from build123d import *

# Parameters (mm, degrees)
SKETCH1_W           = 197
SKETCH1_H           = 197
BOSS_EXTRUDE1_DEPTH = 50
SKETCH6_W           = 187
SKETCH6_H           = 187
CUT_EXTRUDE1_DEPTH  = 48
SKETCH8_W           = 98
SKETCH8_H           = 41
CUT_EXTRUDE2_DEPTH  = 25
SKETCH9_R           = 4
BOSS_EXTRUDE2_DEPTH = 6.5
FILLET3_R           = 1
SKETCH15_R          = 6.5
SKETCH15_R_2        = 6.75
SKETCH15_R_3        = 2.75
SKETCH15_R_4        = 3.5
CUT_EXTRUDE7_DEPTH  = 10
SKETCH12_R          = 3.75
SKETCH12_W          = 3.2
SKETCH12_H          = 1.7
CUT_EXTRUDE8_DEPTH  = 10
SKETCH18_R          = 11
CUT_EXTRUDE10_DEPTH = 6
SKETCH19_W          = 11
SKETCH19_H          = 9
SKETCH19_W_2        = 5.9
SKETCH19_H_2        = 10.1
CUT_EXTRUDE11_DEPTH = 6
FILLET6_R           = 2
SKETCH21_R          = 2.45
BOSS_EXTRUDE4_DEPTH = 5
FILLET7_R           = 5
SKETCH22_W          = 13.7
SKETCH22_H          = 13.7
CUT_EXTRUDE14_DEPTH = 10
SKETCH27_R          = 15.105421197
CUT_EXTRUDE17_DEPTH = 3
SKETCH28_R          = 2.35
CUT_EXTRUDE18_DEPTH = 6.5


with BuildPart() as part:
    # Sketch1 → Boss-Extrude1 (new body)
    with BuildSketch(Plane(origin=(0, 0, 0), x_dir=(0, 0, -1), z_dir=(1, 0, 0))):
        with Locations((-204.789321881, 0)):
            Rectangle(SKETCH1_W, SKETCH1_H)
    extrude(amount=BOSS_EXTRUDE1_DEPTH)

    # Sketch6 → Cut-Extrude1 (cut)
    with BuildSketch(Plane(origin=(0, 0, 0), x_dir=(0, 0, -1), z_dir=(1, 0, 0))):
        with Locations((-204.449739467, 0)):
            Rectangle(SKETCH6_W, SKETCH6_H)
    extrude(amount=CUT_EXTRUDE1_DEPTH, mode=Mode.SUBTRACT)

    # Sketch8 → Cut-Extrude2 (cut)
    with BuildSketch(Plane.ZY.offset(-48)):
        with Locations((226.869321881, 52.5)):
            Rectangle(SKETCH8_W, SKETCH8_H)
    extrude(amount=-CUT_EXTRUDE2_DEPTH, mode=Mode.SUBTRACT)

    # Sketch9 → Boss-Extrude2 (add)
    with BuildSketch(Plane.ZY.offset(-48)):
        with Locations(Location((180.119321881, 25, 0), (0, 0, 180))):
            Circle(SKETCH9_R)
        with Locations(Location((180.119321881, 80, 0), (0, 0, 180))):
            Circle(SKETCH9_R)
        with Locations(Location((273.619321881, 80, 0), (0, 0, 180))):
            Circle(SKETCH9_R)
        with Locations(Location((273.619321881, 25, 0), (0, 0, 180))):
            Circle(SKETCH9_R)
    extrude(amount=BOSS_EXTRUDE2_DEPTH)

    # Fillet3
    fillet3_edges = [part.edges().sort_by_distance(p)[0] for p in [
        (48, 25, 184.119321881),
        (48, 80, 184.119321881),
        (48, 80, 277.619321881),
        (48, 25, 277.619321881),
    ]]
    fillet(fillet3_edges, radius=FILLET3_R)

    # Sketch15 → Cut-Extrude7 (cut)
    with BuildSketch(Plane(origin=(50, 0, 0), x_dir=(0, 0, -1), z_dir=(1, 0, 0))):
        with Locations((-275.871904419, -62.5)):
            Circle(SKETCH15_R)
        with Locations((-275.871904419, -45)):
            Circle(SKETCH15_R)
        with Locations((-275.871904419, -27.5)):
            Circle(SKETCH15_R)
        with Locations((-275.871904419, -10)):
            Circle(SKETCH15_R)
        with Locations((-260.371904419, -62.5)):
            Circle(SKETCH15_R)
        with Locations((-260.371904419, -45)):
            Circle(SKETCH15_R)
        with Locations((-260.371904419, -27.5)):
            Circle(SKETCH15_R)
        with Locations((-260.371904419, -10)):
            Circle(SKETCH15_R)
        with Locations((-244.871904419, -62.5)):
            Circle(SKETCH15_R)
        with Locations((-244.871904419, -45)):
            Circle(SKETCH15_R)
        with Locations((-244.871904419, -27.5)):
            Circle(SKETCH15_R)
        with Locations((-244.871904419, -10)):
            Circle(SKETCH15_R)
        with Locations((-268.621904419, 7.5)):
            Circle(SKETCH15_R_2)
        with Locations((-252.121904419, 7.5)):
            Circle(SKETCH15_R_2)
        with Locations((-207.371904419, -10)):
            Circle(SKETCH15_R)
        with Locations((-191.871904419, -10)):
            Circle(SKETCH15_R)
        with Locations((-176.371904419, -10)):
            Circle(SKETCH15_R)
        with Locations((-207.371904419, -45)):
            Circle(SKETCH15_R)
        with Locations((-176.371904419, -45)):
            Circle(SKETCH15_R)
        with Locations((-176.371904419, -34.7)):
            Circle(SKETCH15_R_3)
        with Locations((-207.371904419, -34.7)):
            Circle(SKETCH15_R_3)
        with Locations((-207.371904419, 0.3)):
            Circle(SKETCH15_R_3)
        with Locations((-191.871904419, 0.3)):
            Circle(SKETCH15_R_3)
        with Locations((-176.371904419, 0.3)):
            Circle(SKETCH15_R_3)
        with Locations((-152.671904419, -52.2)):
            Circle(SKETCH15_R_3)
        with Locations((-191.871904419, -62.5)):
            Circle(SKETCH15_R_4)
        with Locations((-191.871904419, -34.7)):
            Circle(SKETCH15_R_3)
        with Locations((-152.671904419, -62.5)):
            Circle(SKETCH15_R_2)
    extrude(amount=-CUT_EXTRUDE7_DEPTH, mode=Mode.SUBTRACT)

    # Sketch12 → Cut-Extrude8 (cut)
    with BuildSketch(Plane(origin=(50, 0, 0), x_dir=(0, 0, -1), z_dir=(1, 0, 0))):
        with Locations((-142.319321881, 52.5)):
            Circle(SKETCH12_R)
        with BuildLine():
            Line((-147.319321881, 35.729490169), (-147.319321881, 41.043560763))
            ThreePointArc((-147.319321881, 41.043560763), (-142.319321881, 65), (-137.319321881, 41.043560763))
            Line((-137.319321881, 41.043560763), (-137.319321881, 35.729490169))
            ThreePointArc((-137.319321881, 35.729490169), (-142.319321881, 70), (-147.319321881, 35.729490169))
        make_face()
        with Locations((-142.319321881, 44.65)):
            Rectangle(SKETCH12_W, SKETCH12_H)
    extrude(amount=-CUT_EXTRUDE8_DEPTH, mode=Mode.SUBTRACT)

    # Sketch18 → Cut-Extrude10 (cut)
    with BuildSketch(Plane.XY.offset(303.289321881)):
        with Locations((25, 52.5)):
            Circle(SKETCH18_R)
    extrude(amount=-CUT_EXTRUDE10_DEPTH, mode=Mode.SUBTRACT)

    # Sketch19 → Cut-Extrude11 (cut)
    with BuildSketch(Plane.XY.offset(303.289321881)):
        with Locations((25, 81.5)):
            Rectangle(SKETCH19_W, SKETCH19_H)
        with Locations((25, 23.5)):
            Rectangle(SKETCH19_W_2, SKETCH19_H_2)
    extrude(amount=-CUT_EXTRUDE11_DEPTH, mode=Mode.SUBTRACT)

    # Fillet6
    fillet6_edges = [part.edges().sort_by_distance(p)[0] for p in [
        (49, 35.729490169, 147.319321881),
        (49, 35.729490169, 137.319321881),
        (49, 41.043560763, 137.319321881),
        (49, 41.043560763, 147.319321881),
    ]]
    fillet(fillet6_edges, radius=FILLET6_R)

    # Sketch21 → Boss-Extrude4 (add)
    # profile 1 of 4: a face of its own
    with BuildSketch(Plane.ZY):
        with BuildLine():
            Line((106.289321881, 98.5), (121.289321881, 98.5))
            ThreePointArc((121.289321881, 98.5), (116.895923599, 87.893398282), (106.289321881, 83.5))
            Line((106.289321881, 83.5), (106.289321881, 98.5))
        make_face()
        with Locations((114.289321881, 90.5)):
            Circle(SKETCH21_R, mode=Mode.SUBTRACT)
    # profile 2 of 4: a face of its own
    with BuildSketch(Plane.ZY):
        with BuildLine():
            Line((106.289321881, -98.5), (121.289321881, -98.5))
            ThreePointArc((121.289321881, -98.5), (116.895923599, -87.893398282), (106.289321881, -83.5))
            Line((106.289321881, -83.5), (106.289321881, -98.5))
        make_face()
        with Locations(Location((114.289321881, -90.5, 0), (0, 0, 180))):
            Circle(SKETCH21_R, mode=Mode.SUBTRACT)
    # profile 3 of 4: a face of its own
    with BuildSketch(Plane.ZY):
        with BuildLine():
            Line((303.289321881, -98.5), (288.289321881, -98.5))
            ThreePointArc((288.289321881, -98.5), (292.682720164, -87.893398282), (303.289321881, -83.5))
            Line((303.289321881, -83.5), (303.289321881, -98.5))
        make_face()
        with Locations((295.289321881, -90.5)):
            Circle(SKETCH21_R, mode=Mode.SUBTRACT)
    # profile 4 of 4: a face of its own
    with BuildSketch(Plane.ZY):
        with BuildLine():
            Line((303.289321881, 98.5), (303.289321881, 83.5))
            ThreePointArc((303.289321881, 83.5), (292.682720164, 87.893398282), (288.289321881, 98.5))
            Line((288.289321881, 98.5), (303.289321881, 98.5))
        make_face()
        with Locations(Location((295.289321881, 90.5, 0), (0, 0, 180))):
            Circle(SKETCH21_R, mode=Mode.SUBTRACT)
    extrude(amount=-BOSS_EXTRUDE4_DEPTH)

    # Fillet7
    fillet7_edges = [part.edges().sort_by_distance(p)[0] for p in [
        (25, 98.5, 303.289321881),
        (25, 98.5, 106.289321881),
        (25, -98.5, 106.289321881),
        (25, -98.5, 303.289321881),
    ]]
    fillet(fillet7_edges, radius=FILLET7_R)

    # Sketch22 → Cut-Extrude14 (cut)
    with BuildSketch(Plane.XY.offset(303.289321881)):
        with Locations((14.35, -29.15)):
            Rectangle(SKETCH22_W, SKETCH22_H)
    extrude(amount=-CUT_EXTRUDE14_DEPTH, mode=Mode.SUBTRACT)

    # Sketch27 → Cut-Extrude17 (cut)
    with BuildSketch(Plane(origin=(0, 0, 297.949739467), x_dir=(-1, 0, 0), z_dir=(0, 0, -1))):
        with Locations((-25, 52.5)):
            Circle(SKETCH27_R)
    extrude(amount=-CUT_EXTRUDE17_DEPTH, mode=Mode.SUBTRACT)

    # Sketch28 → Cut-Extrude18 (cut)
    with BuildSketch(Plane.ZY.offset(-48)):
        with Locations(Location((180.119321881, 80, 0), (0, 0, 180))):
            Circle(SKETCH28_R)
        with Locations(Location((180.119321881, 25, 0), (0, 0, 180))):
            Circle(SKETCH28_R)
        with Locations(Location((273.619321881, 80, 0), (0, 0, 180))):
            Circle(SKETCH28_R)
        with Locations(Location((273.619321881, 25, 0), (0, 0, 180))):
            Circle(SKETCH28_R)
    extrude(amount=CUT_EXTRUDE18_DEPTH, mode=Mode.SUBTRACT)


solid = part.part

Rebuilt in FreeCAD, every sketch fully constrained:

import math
import FreeCAD as App
import Part
import Sketcher
Q = App.Units.Quantity


def edges_at(feature, points):
    """Names of the edges that pass closest to the given points."""
    edges = feature.Shape.Edges
    near = lambda p: min(range(len(edges)), key=lambda i: edges[i].distToShape(Part.Vertex(*p))[0])
    return sorted({f"Edge{near(p) + 1}" for p in points})

doc = App.newDocument("Part")
body = doc.addObject("PartDesign::Body", "Body")

sketch1 = doc.addObject("Sketcher::SketchObject", "Sketch")
body.addObject(sketch1)
sketch1.AttachmentSupport = (doc.YZ_Plane, [""])
sketch1.MapMode = "FlatFace"
sketch1.addGeometry(Part.LineSegment(App.Vector(98, 303, 0), App.Vector(-98, 303, 0)), False)
sketch1.addGeometry(Part.LineSegment(App.Vector(-98, 303, 0), App.Vector(-98, 106, 0)), False)
sketch1.addGeometry(Part.LineSegment(App.Vector(-98, 106, 0), App.Vector(98, 106, 0)), False)
sketch1.addGeometry(Part.LineSegment(App.Vector(98, 106, 0), App.Vector(98, 303, 0)), False)
sketch1.addConstraint(Sketcher.Constraint("Coincident", 0, 2, 1, 1))
sketch1.addConstraint(Sketcher.Constraint("Coincident", 1, 2, 2, 1))
sketch1.addConstraint(Sketcher.Constraint("Coincident", 2, 2, 3, 1))
sketch1.addConstraint(Sketcher.Constraint("Coincident", 3, 2, 0, 1))
sketch1.addConstraint(Sketcher.Constraint("Horizontal", 0))
sketch1.addConstraint(Sketcher.Constraint("Vertical", 1))
sketch1.addConstraint(Sketcher.Constraint("Horizontal", 2))
sketch1.addConstraint(Sketcher.Constraint("Vertical", 3))
sketch1.addConstraint(Sketcher.Constraint("Equal", 2, 1))
sketch1.addConstraint(Sketcher.Constraint("DistanceX", 0, 2, 0, 1, Q("197 mm")))
sketch1.addConstraint(Sketcher.Constraint("DistanceX", 0, 2, -1, 1, Q("98.5 mm")))
sketch1.addConstraint(Sketcher.Constraint("DistanceY", -1, 1, 0, 2, Q("303.289322 mm")))
pad1 = doc.addObject("PartDesign::Pad", "Pad")
body.addObject(pad1)
pad1.Profile = sketch1
pad1.Length = 50

sketch2 = doc.addObject("Sketcher::SketchObject", "Sketch001")
body.addObject(sketch2)
sketch2.AttachmentSupport = (doc.YZ_Plane, [""])
sketch2.MapMode = "FlatFace"
sketch2.addGeometry(Part.LineSegment(App.Vector(94, 298, 0), App.Vector(-94, 298, 0)), False)
sketch2.addGeometry(Part.LineSegment(App.Vector(-94, 298, 0), App.Vector(-94, 111, 0)), False)
sketch2.addGeometry(Part.LineSegment(App.Vector(-94, 111, 0), App.Vector(94, 111, 0)), False)
sketch2.addGeometry(Part.LineSegment(App.Vector(94, 111, 0), App.Vector(94, 298, 0)), False)
sketch2.addConstraint(Sketcher.Constraint("Coincident", 0, 2, 1, 1))
sketch2.addConstraint(Sketcher.Constraint("Coincident", 1, 2, 2, 1))
sketch2.addConstraint(Sketcher.Constraint("Coincident", 2, 2, 3, 1))
sketch2.addConstraint(Sketcher.Constraint("Coincident", 3, 2, 0, 1))
sketch2.addConstraint(Sketcher.Constraint("Horizontal", 0))
sketch2.addConstraint(Sketcher.Constraint("Vertical", 1))
sketch2.addConstraint(Sketcher.Constraint("Horizontal", 2))
sketch2.addConstraint(Sketcher.Constraint("Vertical", 3))
sketch2.addConstraint(Sketcher.Constraint("Equal", 2, 1))
sketch2.addConstraint(Sketcher.Constraint("DistanceX", 0, 2, 0, 1, Q("187 mm")))
sketch2.addConstraint(Sketcher.Constraint("DistanceX", 0, 2, -1, 1, Q("93.5 mm")))
sketch2.addConstraint(Sketcher.Constraint("DistanceY", -1, 1, 0, 2, Q("297.949739 mm")))
pocket1 = doc.addObject("PartDesign::Pocket", "Pocket")
body.addObject(pocket1)
pocket1.Profile = sketch2
pocket1.Length = 48
pocket1.Reversed = True

sketch3 = doc.addObject("Sketcher::SketchObject", "Sketch002")
body.addObject(sketch3)
sketch3.AttachmentSupport = (doc.YZ_Plane, [""])
sketch3.MapMode = "FlatFace"
sketch3.AttachmentOffset = App.Placement(App.Vector(0, 0, 48), App.Rotation())
sketch3.addGeometry(Part.LineSegment(App.Vector(73, 178, 0), App.Vector(32, 178, 0)), False)
sketch3.addGeometry(Part.LineSegment(App.Vector(32, 178, 0), App.Vector(32, 276, 0)), False)
sketch3.addGeometry(Part.LineSegment(App.Vector(32, 276, 0), App.Vector(73, 276, 0)), False)
sketch3.addGeometry(Part.LineSegment(App.Vector(73, 276, 0), App.Vector(73, 178, 0)), False)
sketch3.addConstraint(Sketcher.Constraint("Coincident", 0, 2, 1, 1))
sketch3.addConstraint(Sketcher.Constraint("Coincident", 1, 2, 2, 1))
sketch3.addConstraint(Sketcher.Constraint("Coincident", 2, 2, 3, 1))
sketch3.addConstraint(Sketcher.Constraint("Coincident", 3, 2, 0, 1))
sketch3.addConstraint(Sketcher.Constraint("Horizontal", 0))
sketch3.addConstraint(Sketcher.Constraint("Vertical", 1))
sketch3.addConstraint(Sketcher.Constraint("Horizontal", 2))
sketch3.addConstraint(Sketcher.Constraint("Vertical", 3))
sketch3.addConstraint(Sketcher.Constraint("DistanceX", 0, 2, 0, 1, Q("41 mm")))
sketch3.addConstraint(Sketcher.Constraint("DistanceY", 1, 1, 1, 2, Q("98 mm")))
sketch3.addConstraint(Sketcher.Constraint("DistanceX", -1, 1, 0, 2, Q("32 mm")))
sketch3.addConstraint(Sketcher.Constraint("DistanceY", -1, 1, 0, 2, Q("177.869322 mm")))
pocket2 = doc.addObject("PartDesign::Pocket", "Pocket001")
body.addObject(pocket2)
pocket2.Profile = sketch3
pocket2.Length = 25
pocket2.Reversed = True

sketch4 = doc.addObject("Sketcher::SketchObject", "Sketch003")
body.addObject(sketch4)
sketch4.AttachmentSupport = (doc.YZ_Plane, [""])
sketch4.MapMode = "FlatFace"
sketch4.AttachmentOffset = App.Placement(App.Vector(0, 0, 48), App.Rotation())
sketch4.addGeometry(Part.Circle(App.Vector(25, 180.1, 0), App.Vector(0, 0, 1), 4), False)
sketch4.addGeometry(Part.Circle(App.Vector(80, 180.1, 0), App.Vector(0, 0, 1), 4), False)
sketch4.addGeometry(Part.Circle(App.Vector(80, 273.6, 0), App.Vector(0, 0, 1), 4), False)
sketch4.addGeometry(Part.Circle(App.Vector(25, 273.6, 0), App.Vector(0, 0, 1), 4), False)
sketch4.addConstraint(Sketcher.Constraint("Equal", 0, 1))
sketch4.addConstraint(Sketcher.Constraint("Equal", 1, 2))
sketch4.addConstraint(Sketcher.Constraint("Equal", 2, 3))
sketch4.addConstraint(Sketcher.Constraint("Horizontal", 0, 3, 1, 3))
sketch4.addConstraint(Sketcher.Constraint("Horizontal", 2, 3, 3, 3))
sketch4.addConstraint(Sketcher.Constraint("Vertical", 1, 3, 2, 3))
sketch4.addConstraint(Sketcher.Constraint("Vertical", 0, 3, 3, 3))
sketch4.addConstraint(Sketcher.Constraint("Diameter", 0, Q("8 mm")))
sketch4.addConstraint(Sketcher.Constraint("DistanceX", -1, 1, 0, 3, Q("25 mm")))
sketch4.addConstraint(Sketcher.Constraint("DistanceX", -1, 1, 1, 3, Q("80 mm")))
sketch4.addConstraint(Sketcher.Constraint("DistanceY", 1, 3, 2, 3, Q("93.5 mm")))
sketch4.addConstraint(Sketcher.Constraint("DistanceY", -1, 1, 0, 3, Q("180.119322 mm")))
pad2 = doc.addObject("PartDesign::Pad", "Pad001")
body.addObject(pad2)
pad2.Profile = sketch4
pad2.Length = 6.5
pad2.Reversed = True
doc.recompute()

fillet = doc.addObject("PartDesign::Fillet", "Fillet")
body.addObject(fillet)
fillet.Base = (pad2, edges_at(pad2, [
    (48, 25, 184.119),
    (48, 80, 184.119),
    (48, 80, 277.619),
    (48, 25, 277.619),
]))
fillet.Radius = 1

sketch5 = doc.addObject("Sketcher::SketchObject", "Sketch004")
body.addObject(sketch5)
sketch5.AttachmentSupport = (doc.YZ_Plane, [""])
sketch5.MapMode = "FlatFace"
sketch5.AttachmentOffset = App.Placement(App.Vector(0, 0, 50), App.Rotation())
sketch5.addGeometry(Part.Circle(App.Vector(-62.5, 275.9, 0), App.Vector(0, 0, 1), 6.5), False)
sketch5.addGeometry(Part.Circle(App.Vector(-45, 275.9, 0), App.Vector(0, 0, 1), 6.5), False)
sketch5.addGeometry(Part.Circle(App.Vector(-27.5, 275.9, 0), App.Vector(0, 0, 1), 6.5), False)
sketch5.addGeometry(Part.Circle(App.Vector(-10, 275.9, 0), App.Vector(0, 0, 1), 6.5), False)
sketch5.addGeometry(Part.Circle(App.Vector(-62.5, 260.4, 0), App.Vector(0, 0, 1), 6.5), False)
sketch5.addGeometry(Part.Circle(App.Vector(-45, 260.4, 0), App.Vector(0, 0, 1), 6.5), False)
sketch5.addGeometry(Part.Circle(App.Vector(-27.5, 260.4, 0), App.Vector(0, 0, 1), 6.5), False)
sketch5.addGeometry(Part.Circle(App.Vector(-10, 260.4, 0), App.Vector(0, 0, 1), 6.5), False)
sketch5.addGeometry(Part.Circle(App.Vector(-62.5, 244.9, 0), App.Vector(0, 0, 1), 6.5), False)
sketch5.addGeometry(Part.Circle(App.Vector(-45, 244.9, 0), App.Vector(0, 0, 1), 6.5), False)
sketch5.addGeometry(Part.Circle(App.Vector(-27.5, 244.9, 0), App.Vector(0, 0, 1), 6.5), False)
sketch5.addGeometry(Part.Circle(App.Vector(-10, 244.9, 0), App.Vector(0, 0, 1), 6.5), False)
sketch5.addGeometry(Part.Circle(App.Vector(7.5, 268.6, 0), App.Vector(0, 0, 1), 6.8), False)
sketch5.addGeometry(Part.Circle(App.Vector(7.5, 252.1, 0), App.Vector(0, 0, 1), 6.8), False)
sketch5.addGeometry(Part.Circle(App.Vector(-10, 207.4, 0), App.Vector(0, 0, 1), 6.5), False)
sketch5.addGeometry(Part.Circle(App.Vector(-10, 191.9, 0), App.Vector(0, 0, 1), 6.5), False)
sketch5.addGeometry(Part.Circle(App.Vector(-10, 176.4, 0), App.Vector(0, 0, 1), 6.5), False)
sketch5.addGeometry(Part.Circle(App.Vector(-45, 207.4, 0), App.Vector(0, 0, 1), 6.5), False)
sketch5.addGeometry(Part.Circle(App.Vector(-45, 176.4, 0), App.Vector(0, 0, 1), 6.5), False)
sketch5.addGeometry(Part.Circle(App.Vector(-34.7, 176.4, 0), App.Vector(0, 0, 1), 2.8), False)
sketch5.addGeometry(Part.Circle(App.Vector(-34.7, 207.4, 0), App.Vector(0, 0, 1), 2.8), False)
sketch5.addGeometry(Part.Circle(App.Vector(0.3, 207.4, 0), App.Vector(0, 0, 1), 2.8), False)
sketch5.addGeometry(Part.Circle(App.Vector(0.3, 191.9, 0), App.Vector(0, 0, 1), 2.8), False)
sketch5.addGeometry(Part.Circle(App.Vector(0.3, 176.4, 0), App.Vector(0, 0, 1), 2.8), False)
sketch5.addGeometry(Part.Circle(App.Vector(-52.2, 152.7, 0), App.Vector(0, 0, 1), 2.8), False)
sketch5.addGeometry(Part.Circle(App.Vector(-62.5, 191.9, 0), App.Vector(0, 0, 1), 3.5), False)
sketch5.addGeometry(Part.Circle(App.Vector(-34.7, 191.9, 0), App.Vector(0, 0, 1), 2.8), False)
sketch5.addGeometry(Part.Circle(App.Vector(-62.5, 152.7, 0), App.Vector(0, 0, 1), 6.8), False)
sketch5.addConstraint(Sketcher.Constraint("Equal", 0, 1))
sketch5.addConstraint(Sketcher.Constraint("Equal", 1, 2))
sketch5.addConstraint(Sketcher.Constraint("Equal", 2, 3))
sketch5.addConstraint(Sketcher.Constraint("Equal", 3, 4))
sketch5.addConstraint(Sketcher.Constraint("Equal", 4, 5))
sketch5.addConstraint(Sketcher.Constraint("Equal", 5, 6))
sketch5.addConstraint(Sketcher.Constraint("Equal", 6, 7))
sketch5.addConstraint(Sketcher.Constraint("Equal", 7, 8))
sketch5.addConstraint(Sketcher.Constraint("Equal", 8, 9))
sketch5.addConstraint(Sketcher.Constraint("Equal", 9, 10))
sketch5.addConstraint(Sketcher.Constraint("Equal", 10, 11))
sketch5.addConstraint(Sketcher.Constraint("Equal", 12, 13))
sketch5.addConstraint(Sketcher.Constraint("Equal", 11, 14))
sketch5.addConstraint(Sketcher.Constraint("Equal", 14, 15))
sketch5.addConstraint(Sketcher.Constraint("Equal", 15, 16))
sketch5.addConstraint(Sketcher.Constraint("Equal", 16, 17))
sketch5.addConstraint(Sketcher.Constraint("Equal", 17, 18))
sketch5.addConstraint(Sketcher.Constraint("Equal", 19, 20))
sketch5.addConstraint(Sketcher.Constraint("Equal", 20, 21))
sketch5.addConstraint(Sketcher.Constraint("Equal", 21, 22))
sketch5.addConstraint(Sketcher.Constraint("Equal", 22, 23))
sketch5.addConstraint(Sketcher.Constraint("Equal", 23, 24))
sketch5.addConstraint(Sketcher.Constraint("Equal", 24, 26))
sketch5.addConstraint(Sketcher.Constraint("Equal", 13, 27))
sketch5.addConstraint(Sketcher.Constraint("Horizontal", 0, 3, 1, 3))
sketch5.addConstraint(Sketcher.Constraint("Horizontal", 1, 3, 2, 3))
sketch5.addConstraint(Sketcher.Constraint("Horizontal", 2, 3, 3, 3))
sketch5.addConstraint(Sketcher.Constraint("Horizontal", 4, 3, 5, 3))
sketch5.addConstraint(Sketcher.Constraint("Horizontal", 5, 3, 6, 3))
sketch5.addConstraint(Sketcher.Constraint("Horizontal", 6, 3, 7, 3))
sketch5.addConstraint(Sketcher.Constraint("Horizontal", 8, 3, 9, 3))
sketch5.addConstraint(Sketcher.Constraint("Horizontal", 9, 3, 10, 3))
sketch5.addConstraint(Sketcher.Constraint("Horizontal", 10, 3, 11, 3))
sketch5.addConstraint(Sketcher.Constraint("Horizontal", 14, 3, 17, 3))
sketch5.addConstraint(Sketcher.Constraint("Horizontal", 16, 3, 18, 3))
sketch5.addConstraint(Sketcher.Constraint("Horizontal", 18, 3, 19, 3))
sketch5.addConstraint(Sketcher.Constraint("Horizontal", 17, 3, 20, 3))
sketch5.addConstraint(Sketcher.Constraint("Horizontal", 20, 3, 21, 3))
sketch5.addConstraint(Sketcher.Constraint("Horizontal", 15, 3, 22, 3))
sketch5.addConstraint(Sketcher.Constraint("Horizontal", 19, 3, 23, 3))
sketch5.addConstraint(Sketcher.Constraint("Horizontal", 22, 3, 25, 3))
sketch5.addConstraint(Sketcher.Constraint("Horizontal", 25, 3, 26, 3))
sketch5.addConstraint(Sketcher.Constraint("Horizontal", 24, 3, 27, 3))
sketch5.addConstraint(Sketcher.Constraint("Vertical", 0, 3, 4, 3))
sketch5.addConstraint(Sketcher.Constraint("Vertical", 1, 3, 5, 3))
sketch5.addConstraint(Sketcher.Constraint("Vertical", 2, 3, 6, 3))
sketch5.addConstraint(Sketcher.Constraint("Vertical", 3, 3, 7, 3))
sketch5.addConstraint(Sketcher.Constraint("Vertical", 4, 3, 8, 3))
sketch5.addConstraint(Sketcher.Constraint("Vertical", 5, 3, 9, 3))
sketch5.addConstraint(Sketcher.Constraint("Vertical", 6, 3, 10, 3))
sketch5.addConstraint(Sketcher.Constraint("Vertical", 7, 3, 11, 3))
sketch5.addConstraint(Sketcher.Constraint("Vertical", 12, 3, 13, 3))
sketch5.addConstraint(Sketcher.Constraint("Vertical", 11, 3, 14, 3))
sketch5.addConstraint(Sketcher.Constraint("Vertical", 14, 3, 15, 3))
sketch5.addConstraint(Sketcher.Constraint("Vertical", 15, 3, 16, 3))
sketch5.addConstraint(Sketcher.Constraint("Vertical", 9, 3, 17, 3))
sketch5.addConstraint(Sketcher.Constraint("Vertical", 17, 3, 18, 3))
sketch5.addConstraint(Sketcher.Constraint("Vertical", 19, 3, 20, 3))
sketch5.addConstraint(Sketcher.Constraint("Vertical", 21, 3, 22, 3))
sketch5.addConstraint(Sketcher.Constraint("Vertical", 22, 3, 23, 3))
sketch5.addConstraint(Sketcher.Constraint("Vertical", 8, 3, 25, 3))
sketch5.addConstraint(Sketcher.Constraint("Vertical", 20, 3, 26, 3))
sketch5.addConstraint(Sketcher.Constraint("Vertical", 25, 3, 27, 3))
sketch5.addConstraint(Sketcher.Constraint("Diameter", 0, Q("13 mm")))
sketch5.addConstraint(Sketcher.Constraint("Diameter", 25, Q("7 mm")))
sketch5.addConstraint(Sketcher.Constraint("Diameter", 12, Q("13.5 mm")))
sketch5.addConstraint(Sketcher.Constraint("Diameter", 19, Q("5.5 mm")))
sketch5.addConstraint(Sketcher.Constraint("DistanceX", 1, 3, -1, 1, Q("45 mm")))
sketch5.addConstraint(Sketcher.Constraint("DistanceX", 3, 3, -1, 1, Q("10 mm")))
sketch5.addConstraint(Sketcher.Constraint("DistanceX", 0, 3, 2, 3, Q("35 mm")))
sketch5.addConstraint(Sketcher.Constraint("DistanceY", 8, 3, 0, 3, Q("31 mm")))
sketch5.addConstraint(Sketcher.Constraint("DistanceX", 2, 3, 12, 3, Q("35 mm")))
sketch5.addConstraint(Sketcher.Constraint("DistanceY", 14, 3, 7, 3, Q("53 mm")))
sketch5.addConstraint(Sketcher.Constraint("DistanceY", 15, 3, 11, 3, Q("53 mm")))
sketch5.addConstraint(Sketcher.Constraint("DistanceY", 16, 3, 14, 3, Q("31 mm")))
sketch5.addConstraint(Sketcher.Constraint("DistanceX", 20, 3, 21, 3, Q("35 mm")))
sketch5.addConstraint(Sketcher.Constraint("DistanceX", 0, 3, -1, 1, Q("62.5 mm")))
sketch5.addConstraint(Sketcher.Constraint("DistanceX", 19, 3, -1, 1, Q("34.7 mm")))
sketch5.addConstraint(Sketcher.Constraint("DistanceX", 24, 3, -1, 1, Q("52.2 mm")))
sketch5.addConstraint(Sketcher.Constraint("DistanceY", 4, 3, 0, 3, Q("15.5 mm")))
sketch5.addConstraint(Sketcher.Constraint("DistanceY", 13, 3, 12, 3, Q("16.5 mm")))
sketch5.addConstraint(Sketcher.Constraint("DistanceY", 24, 3, 18, 3, Q("23.7 mm")))
sketch5.addConstraint(Sketcher.Constraint("DistanceY", 12, 3, 3, 3, Q("7.25 mm")))
sketch5.addConstraint(Sketcher.Constraint("DistanceY", -1, 1, 0, 3, Q("275.871904 mm")))
pocket3 = doc.addObject("PartDesign::Pocket", "Pocket002")
body.addObject(pocket3)
pocket3.Profile = sketch5
pocket3.Length = 10

sketch6 = doc.addObject("Sketcher::SketchObject", "Sketch005")
body.addObject(sketch6)
sketch6.AttachmentSupport = (doc.YZ_Plane, [""])
sketch6.MapMode = "FlatFace"
sketch6.AttachmentOffset = App.Placement(App.Vector(0, 0, 50), App.Rotation())
sketch6.addGeometry(Part.Circle(App.Vector(52.5, 142.3, 0), App.Vector(0, 0, 1), 3.8), False)
sketch6.addGeometry(Part.LineSegment(App.Vector(35.7, 147.3, 0), App.Vector(41, 147.3, 0)), False)
sketch6.addGeometry(Part.ArcOfCircle(Part.Circle(App.Vector(52.5, 142.3, 0), App.Vector(0, 0, 1), 12.5), math.radians(-156), math.radians(156)), False)
sketch6.addGeometry(Part.LineSegment(App.Vector(41, 137.3, 0), App.Vector(35.7, 137.3, 0)), False)
sketch6.addGeometry(Part.ArcOfCircle(Part.Circle(App.Vector(52.5, 142.3, 0), App.Vector(0, 0, 1), 17.5), math.radians(-163), math.radians(163)), False)
sketch6.addGeometry(Part.LineSegment(App.Vector(45.5, 143.9, 0), App.Vector(43.8, 143.9, 0)), False)
sketch6.addGeometry(Part.LineSegment(App.Vector(43.8, 143.9, 0), App.Vector(43.8, 140.7, 0)), False)
sketch6.addGeometry(Part.LineSegment(App.Vector(43.8, 140.7, 0), App.Vector(45.5, 140.7, 0)), False)
sketch6.addGeometry(Part.LineSegment(App.Vector(45.5, 140.7, 0), App.Vector(45.5, 143.9, 0)), False)
sketch6.addConstraint(Sketcher.Constraint("Coincident", 1, 2, 2, 2))
sketch6.addConstraint(Sketcher.Constraint("Coincident", 2, 1, 3, 1))
sketch6.addConstraint(Sketcher.Constraint("Coincident", 3, 2, 4, 1))
sketch6.addConstraint(Sketcher.Constraint("Coincident", 4, 2, 1, 1))
sketch6.addConstraint(Sketcher.Constraint("Coincident", 5, 2, 6, 1))
sketch6.addConstraint(Sketcher.Constraint("Coincident", 6, 2, 7, 1))
sketch6.addConstraint(Sketcher.Constraint("Coincident", 7, 2, 8, 1))
sketch6.addConstraint(Sketcher.Constraint("Coincident", 8, 2, 5, 1))
sketch6.addConstraint(Sketcher.Constraint("Horizontal", 1))
sketch6.addConstraint(Sketcher.Constraint("Horizontal", 3))
sketch6.addConstraint(Sketcher.Constraint("Horizontal", 5))
sketch6.addConstraint(Sketcher.Constraint("Vertical", 6))
sketch6.addConstraint(Sketcher.Constraint("Horizontal", 7))
sketch6.addConstraint(Sketcher.Constraint("Vertical", 8))
sketch6.addConstraint(Sketcher.Constraint("Coincident", 2, 3, 0, 3))
sketch6.addConstraint(Sketcher.Constraint("Coincident", 4, 3, 0, 3))
sketch6.addConstraint(Sketcher.Constraint("Vertical", 1, 2, 2, 1))
sketch6.addConstraint(Sketcher.Constraint("Diameter", 0, Q("7.5 mm")))
sketch6.addConstraint(Sketcher.Constraint("Radius", 2, Q("12.5 mm")))
sketch6.addConstraint(Sketcher.Constraint("Radius", 4, Q("17.5 mm")))
sketch6.addConstraint(Sketcher.Constraint("DistanceX", 5, 2, 5, 1, Q("1.7 mm")))
sketch6.addConstraint(Sketcher.Constraint("DistanceY", 6, 2, 6, 1, Q("3.2 mm")))
sketch6.addConstraint(Sketcher.Constraint("DistanceY", 0, 3, 1, 2, Q("5 mm")))
sketch6.addConstraint(Sketcher.Constraint("DistanceX", 7, 2, 0, 3, Q("7 mm")))
sketch6.addConstraint(Sketcher.Constraint("DistanceX", -1, 1, 0, 3, Q("52.5 mm")))
sketch6.addConstraint(Sketcher.Constraint("DistanceY", 5, 2, 1, 2, Q("3.4 mm")))
sketch6.addConstraint(Sketcher.Constraint("DistanceY", -1, 1, 0, 3, Q("142.319322 mm")))
pocket4 = doc.addObject("PartDesign::Pocket", "Pocket003")
body.addObject(pocket4)
pocket4.Profile = sketch6
pocket4.Length = 10

sketch7 = doc.addObject("Sketcher::SketchObject", "Sketch006")
body.addObject(sketch7)
sketch7.AttachmentSupport = (doc.XY_Plane, [""])
sketch7.MapMode = "FlatFace"
sketch7.AttachmentOffset = App.Placement(App.Vector(0, 0, 303.289322), App.Rotation())
sketch7.addGeometry(Part.Circle(App.Vector(25, 52, 0), App.Vector(0, 0, 1), 11), False)
sketch7.addConstraint(Sketcher.Constraint("Diameter", 0, Q("22 mm")))
sketch7.addConstraint(Sketcher.Constraint("DistanceX", -1, 1, 0, 3, Q("25 mm")))
sketch7.addConstraint(Sketcher.Constraint("DistanceY", -1, 1, 0, 3, Q("52.5 mm")))
pocket5 = doc.addObject("PartDesign::Pocket", "Pocket004")
body.addObject(pocket5)
pocket5.Profile = sketch7
pocket5.Length = 6

sketch8 = doc.addObject("Sketcher::SketchObject", "Sketch007")
body.addObject(sketch8)
sketch8.AttachmentSupport = (doc.XY_Plane, [""])
sketch8.MapMode = "FlatFace"
sketch8.AttachmentOffset = App.Placement(App.Vector(0, 0, 303.289322), App.Rotation())
sketch8.addGeometry(Part.LineSegment(App.Vector(20, 86, 0), App.Vector(20, 77, 0)), False)
sketch8.addGeometry(Part.LineSegment(App.Vector(20, 77, 0), App.Vector(30, 77, 0)), False)
sketch8.addGeometry(Part.LineSegment(App.Vector(30, 77, 0), App.Vector(30, 86, 0)), False)
sketch8.addGeometry(Part.LineSegment(App.Vector(30, 86, 0), App.Vector(20, 86, 0)), False)
sketch8.addGeometry(Part.LineSegment(App.Vector(22, 29, 0), App.Vector(22, 18, 0)), False)
sketch8.addGeometry(Part.LineSegment(App.Vector(22, 18, 0), App.Vector(28, 18, 0)), False)
sketch8.addGeometry(Part.LineSegment(App.Vector(28, 18, 0), App.Vector(28, 29, 0)), False)
sketch8.addGeometry(Part.LineSegment(App.Vector(28, 29, 0), App.Vector(22, 29, 0)), False)
sketch8.addConstraint(Sketcher.Constraint("Coincident", 0, 2, 1, 1))
sketch8.addConstraint(Sketcher.Constraint("Coincident", 1, 2, 2, 1))
sketch8.addConstraint(Sketcher.Constraint("Coincident", 2, 2, 3, 1))
sketch8.addConstraint(Sketcher.Constraint("Coincident", 3, 2, 0, 1))
sketch8.addConstraint(Sketcher.Constraint("Coincident", 4, 2, 5, 1))
sketch8.addConstraint(Sketcher.Constraint("Coincident", 5, 2, 6, 1))
sketch8.addConstraint(Sketcher.Constraint("Coincident", 6, 2, 7, 1))
sketch8.addConstraint(Sketcher.Constraint("Coincident", 7, 2, 4, 1))
sketch8.addConstraint(Sketcher.Constraint("Vertical", 0))
sketch8.addConstraint(Sketcher.Constraint("Horizontal", 1))
sketch8.addConstraint(Sketcher.Constraint("Vertical", 2))
sketch8.addConstraint(Sketcher.Constraint("Horizontal", 3))
sketch8.addConstraint(Sketcher.Constraint("Vertical", 4))
sketch8.addConstraint(Sketcher.Constraint("Horizontal", 5))
sketch8.addConstraint(Sketcher.Constraint("Vertical", 6))
sketch8.addConstraint(Sketcher.Constraint("Horizontal", 7))
sketch8.addConstraint(Sketcher.Constraint("DistanceX", 1, 1, 1, 2, Q("11 mm")))
sketch8.addConstraint(Sketcher.Constraint("DistanceY", 0, 2, 0, 1, Q("9 mm")))
sketch8.addConstraint(Sketcher.Constraint("DistanceX", 5, 1, 5, 2, Q("5.9 mm")))
sketch8.addConstraint(Sketcher.Constraint("DistanceY", 4, 2, 4, 1, Q("10.1 mm")))
sketch8.addConstraint(Sketcher.Constraint("DistanceY", -1, 1, 0, 2, Q("77 mm")))
sketch8.addConstraint(Sketcher.Constraint("DistanceX", -1, 1, 0, 2, Q("19.5 mm")))
sketch8.addConstraint(Sketcher.Constraint("DistanceX", -1, 1, 4, 2, Q("22.05 mm")))
sketch8.addConstraint(Sketcher.Constraint("DistanceY", -1, 1, 4, 2, Q("18.45 mm")))
pocket6 = doc.addObject("PartDesign::Pocket", "Pocket005")
body.addObject(pocket6)
pocket6.Profile = sketch8
pocket6.Length = 6
doc.recompute()

fillet2 = doc.addObject("PartDesign::Fillet", "Fillet001")
body.addObject(fillet2)
fillet2.Base = (pocket6, edges_at(pocket6, [
    (49, 35.729, 147.319),
    (49, 35.729, 137.319),
    (49, 41.044, 137.319),
    (49, 41.044, 147.319),
]))
fillet2.Radius = 2

sketch9 = doc.addObject("Sketcher::SketchObject", "Sketch008")
body.addObject(sketch9)
sketch9.AttachmentSupport = (doc.YZ_Plane, [""])
sketch9.MapMode = "FlatFace"
sketch9.addGeometry(Part.LineSegment(App.Vector(98.5, 121.3, 0), App.Vector(98.5, 106.3, 0)), False)
sketch9.addGeometry(Part.LineSegment(App.Vector(98.5, 106.3, 0), App.Vector(83.5, 106.3, 0)), False)
sketch9.addGeometry(Part.ArcOfCircle(Part.Circle(App.Vector(98.5, 106.3, 0), App.Vector(0, 0, 1), 15), math.radians(90), math.radians(180)), False)
sketch9.addGeometry(Part.Circle(App.Vector(90.5, 114.3, 0), App.Vector(0, 0, 1), 2.5), False)
sketch9.addGeometry(Part.LineSegment(App.Vector(-98.5, 106.3, 0), App.Vector(-98.5, 121.3, 0)), False)
sketch9.addGeometry(Part.ArcOfCircle(Part.Circle(App.Vector(-98.5, 106.3, 0), App.Vector(0, 0, 1), 15), math.radians(0), math.radians(90)), False)
sketch9.addGeometry(Part.LineSegment(App.Vector(-83.5, 106.3, 0), App.Vector(-98.5, 106.3, 0)), False)
sketch9.addGeometry(Part.Circle(App.Vector(-90.5, 114.3, 0), App.Vector(0, 0, 1), 2.5), False)
sketch9.addGeometry(Part.LineSegment(App.Vector(-98.5, 288.3, 0), App.Vector(-98.5, 303.3, 0)), False)
sketch9.addGeometry(Part.LineSegment(App.Vector(-98.5, 303.3, 0), App.Vector(-83.5, 303.3, 0)), False)
sketch9.addGeometry(Part.ArcOfCircle(Part.Circle(App.Vector(-98.5, 303.3, 0), App.Vector(0, 0, 1), 15), math.radians(-90), math.radians(0)), False)
sketch9.addGeometry(Part.Circle(App.Vector(-90.5, 295.3, 0), App.Vector(0, 0, 1), 2.5), False)
sketch9.addGeometry(Part.LineSegment(App.Vector(83.5, 303.3, 0), App.Vector(98.5, 303.3, 0)), False)
sketch9.addGeometry(Part.LineSegment(App.Vector(98.5, 303.3, 0), App.Vector(98.5, 288.3, 0)), False)
sketch9.addGeometry(Part.ArcOfCircle(Part.Circle(App.Vector(98.5, 303.3, 0), App.Vector(0, 0, 1), 15), math.radians(-180), math.radians(-90)), False)
sketch9.addGeometry(Part.Circle(App.Vector(90.5, 295.3, 0), App.Vector(0, 0, 1), 2.5), False)
sketch9.addConstraint(Sketcher.Constraint("Coincident", 0, 2, 1, 1))
sketch9.addConstraint(Sketcher.Constraint("Coincident", 1, 2, 2, 2))
sketch9.addConstraint(Sketcher.Constraint("Coincident", 2, 1, 0, 1))
sketch9.addConstraint(Sketcher.Constraint("Coincident", 4, 2, 5, 2))
sketch9.addConstraint(Sketcher.Constraint("Coincident", 5, 1, 6, 1))
sketch9.addConstraint(Sketcher.Constraint("Coincident", 6, 2, 4, 1))
sketch9.addConstraint(Sketcher.Constraint("Coincident", 8, 2, 9, 1))
sketch9.addConstraint(Sketcher.Constraint("Coincident", 9, 2, 10, 2))
sketch9.addConstraint(Sketcher.Constraint("Coincident", 10, 1, 8, 1))
sketch9.addConstraint(Sketcher.Constraint("Coincident", 12, 2, 13, 1))
sketch9.addConstraint(Sketcher.Constraint("Coincident", 13, 2, 14, 2))
sketch9.addConstraint(Sketcher.Constraint("Coincident", 14, 1, 12, 1))
sketch9.addConstraint(Sketcher.Constraint("Vertical", 0))
sketch9.addConstraint(Sketcher.Constraint("Horizontal", 1))
sketch9.addConstraint(Sketcher.Constraint("Vertical", 4))
sketch9.addConstraint(Sketcher.Constraint("Horizontal", 6))
sketch9.addConstraint(Sketcher.Constraint("Vertical", 8))
sketch9.addConstraint(Sketcher.Constraint("Horizontal", 9))
sketch9.addConstraint(Sketcher.Constraint("Horizontal", 12))
sketch9.addConstraint(Sketcher.Constraint("Vertical", 13))
sketch9.addConstraint(Sketcher.Constraint("Coincident", 0, 2, 2, 3))
sketch9.addConstraint(Sketcher.Constraint("Coincident", 6, 2, 5, 3))
sketch9.addConstraint(Sketcher.Constraint("Coincident", 8, 2, 10, 3))
sketch9.addConstraint(Sketcher.Constraint("Coincident", 12, 2, 14, 3))
sketch9.addConstraint(Sketcher.Constraint("Equal", 2, 5))
sketch9.addConstraint(Sketcher.Constraint("Equal", 3, 7))
sketch9.addConstraint(Sketcher.Constraint("Equal", 5, 10))
sketch9.addConstraint(Sketcher.Constraint("Equal", 7, 11))
sketch9.addConstraint(Sketcher.Constraint("Equal", 10, 14))
sketch9.addConstraint(Sketcher.Constraint("Equal", 11, 15))
sketch9.addConstraint(Sketcher.Constraint("Symmetric", 2, 3, 5, 3, -2))
sketch9.addConstraint(Sketcher.Constraint("Symmetric", 3, 3, 7, 3, -2))
sketch9.addConstraint(Sketcher.Constraint("Symmetric", 10, 3, 14, 3, -2))
sketch9.addConstraint(Sketcher.Constraint("Symmetric", 11, 3, 15, 3, -2))
sketch9.addConstraint(Sketcher.Constraint("Vertical", 5, 3, 10, 3))
sketch9.addConstraint(Sketcher.Constraint("Vertical", 7, 3, 11, 3))
sketch9.addConstraint(Sketcher.Constraint("Radius", 2, Q("15 mm")))
sketch9.addConstraint(Sketcher.Constraint("Diameter", 3, Q("4.9 mm")))
sketch9.addConstraint(Sketcher.Constraint("DistanceX", 3, 3, 2, 3, Q("8 mm")))
sketch9.addConstraint(Sketcher.Constraint("DistanceY", 2, 3, 3, 3, Q("8 mm")))
sketch9.addConstraint(Sketcher.Constraint("DistanceX", 5, 3, 3, 3, Q("189 mm")))
sketch9.addConstraint(Sketcher.Constraint("DistanceY", 7, 3, 10, 3, Q("189 mm")))
sketch9.addConstraint(Sketcher.Constraint("DistanceY", 11, 3, 10, 3, Q("8 mm")))
sketch9.addConstraint(Sketcher.Constraint("DistanceY", -1, 1, 2, 3, Q("106.289322 mm")))
pad3 = doc.addObject("PartDesign::Pad", "Pad002")
body.addObject(pad3)
pad3.Profile = sketch9
pad3.Length = 5
doc.recompute()

fillet3 = doc.addObject("PartDesign::Fillet", "Fillet002")
body.addObject(fillet3)
fillet3.Base = (pad3, edges_at(pad3, [
    (25, 98.5, 303.289),
    (25, 98.5, 106.289),
    (25, -98.5, 106.289),
    (25, -98.5, 303.289),
]))
fillet3.Radius = 5

sketch10 = doc.addObject("Sketcher::SketchObject", "Sketch009")
body.addObject(sketch10)
sketch10.AttachmentSupport = (doc.XY_Plane, [""])
sketch10.MapMode = "FlatFace"
sketch10.AttachmentOffset = App.Placement(App.Vector(0, 0, 303.289322), App.Rotation())
sketch10.addGeometry(Part.LineSegment(App.Vector(8, -22, 0), App.Vector(8, -36, 0)), False)
sketch10.addGeometry(Part.LineSegment(App.Vector(8, -36, 0), App.Vector(21, -36, 0)), False)
sketch10.addGeometry(Part.LineSegment(App.Vector(21, -36, 0), App.Vector(21, -22, 0)), False)
sketch10.addGeometry(Part.LineSegment(App.Vector(21, -22, 0), App.Vector(8, -22, 0)), False)
sketch10.addConstraint(Sketcher.Constraint("Coincident", 0, 2, 1, 1))
sketch10.addConstraint(Sketcher.Constraint("Coincident", 1, 2, 2, 1))
sketch10.addConstraint(Sketcher.Constraint("Coincident", 2, 2, 3, 1))
sketch10.addConstraint(Sketcher.Constraint("Coincident", 3, 2, 0, 1))
sketch10.addConstraint(Sketcher.Constraint("Vertical", 0))
sketch10.addConstraint(Sketcher.Constraint("Horizontal", 1))
sketch10.addConstraint(Sketcher.Constraint("Vertical", 2))
sketch10.addConstraint(Sketcher.Constraint("Horizontal", 3))
sketch10.addConstraint(Sketcher.Constraint("Equal", 3, 0))
sketch10.addConstraint(Sketcher.Constraint("DistanceX", 1, 1, 1, 2, Q("13.7 mm")))
sketch10.addConstraint(Sketcher.Constraint("DistanceY", 0, 2, -1, 1, Q("36 mm")))
sketch10.addConstraint(Sketcher.Constraint("DistanceX", -1, 1, 0, 2, Q("7.5 mm")))
pocket7 = doc.addObject("PartDesign::Pocket", "Pocket006")
body.addObject(pocket7)
pocket7.Profile = sketch10
pocket7.Length = 10

sketch11 = doc.addObject("Sketcher::SketchObject", "Sketch010")
body.addObject(sketch11)
sketch11.AttachmentSupport = (doc.XY_Plane, [""])
sketch11.MapMode = "FlatFace"
sketch11.AttachmentOffset = App.Placement(App.Vector(0, 0, 297.949739), App.Rotation())
sketch11.addGeometry(Part.Circle(App.Vector(25, 52, 0), App.Vector(0, 0, 1), 15), False)
sketch11.addConstraint(Sketcher.Constraint("DistanceX", -1, 1, 0, 3, Q("25 mm")))
sketch11.addConstraint(Sketcher.Constraint("DistanceY", -1, 1, 0, 3, Q("52.5 mm")))
sketch11.addConstraint(Sketcher.Constraint("Diameter", 0, Q("30.210842 mm")))
pocket8 = doc.addObject("PartDesign::Pocket", "Pocket007")
body.addObject(pocket8)
pocket8.Profile = sketch11
pocket8.Length = 3
pocket8.Reversed = True

sketch12 = doc.addObject("Sketcher::SketchObject", "Sketch011")
body.addObject(sketch12)
sketch12.AttachmentSupport = (doc.YZ_Plane, [""])
sketch12.MapMode = "FlatFace"
sketch12.AttachmentOffset = App.Placement(App.Vector(0, 0, 48), App.Rotation())
sketch12.addGeometry(Part.Circle(App.Vector(80, 180.1, 0), App.Vector(0, 0, 1), 2.4), False)
sketch12.addGeometry(Part.Circle(App.Vector(25, 180.1, 0), App.Vector(0, 0, 1), 2.4), False)
sketch12.addGeometry(Part.Circle(App.Vector(80, 273.6, 0), App.Vector(0, 0, 1), 2.4), False)
sketch12.addGeometry(Part.Circle(App.Vector(25, 273.6, 0), App.Vector(0, 0, 1), 2.4), False)
sketch12.addConstraint(Sketcher.Constraint("Equal", 0, 1))
sketch12.addConstraint(Sketcher.Constraint("Equal", 1, 2))
sketch12.addConstraint(Sketcher.Constraint("Equal", 2, 3))
sketch12.addConstraint(Sketcher.Constraint("Horizontal", 0, 3, 1, 3))
sketch12.addConstraint(Sketcher.Constraint("Horizontal", 2, 3, 3, 3))
sketch12.addConstraint(Sketcher.Constraint("Vertical", 0, 3, 2, 3))
sketch12.addConstraint(Sketcher.Constraint("Vertical", 1, 3, 3, 3))
sketch12.addConstraint(Sketcher.Constraint("Diameter", 0, Q("4.7 mm")))
sketch12.addConstraint(Sketcher.Constraint("DistanceX", -1, 1, 0, 3, Q("80 mm")))
sketch12.addConstraint(Sketcher.Constraint("DistanceX", -1, 1, 1, 3, Q("25 mm")))
sketch12.addConstraint(Sketcher.Constraint("DistanceY", 0, 3, 2, 3, Q("93.5 mm")))
sketch12.addConstraint(Sketcher.Constraint("DistanceY", -1, 1, 0, 3, Q("180.119322 mm")))
pocket9 = doc.addObject("PartDesign::Pocket", "Pocket008")
body.addObject(pocket9)
pocket9.Profile = sketch12
pocket9.Length = 6.5

doc.recompute()
